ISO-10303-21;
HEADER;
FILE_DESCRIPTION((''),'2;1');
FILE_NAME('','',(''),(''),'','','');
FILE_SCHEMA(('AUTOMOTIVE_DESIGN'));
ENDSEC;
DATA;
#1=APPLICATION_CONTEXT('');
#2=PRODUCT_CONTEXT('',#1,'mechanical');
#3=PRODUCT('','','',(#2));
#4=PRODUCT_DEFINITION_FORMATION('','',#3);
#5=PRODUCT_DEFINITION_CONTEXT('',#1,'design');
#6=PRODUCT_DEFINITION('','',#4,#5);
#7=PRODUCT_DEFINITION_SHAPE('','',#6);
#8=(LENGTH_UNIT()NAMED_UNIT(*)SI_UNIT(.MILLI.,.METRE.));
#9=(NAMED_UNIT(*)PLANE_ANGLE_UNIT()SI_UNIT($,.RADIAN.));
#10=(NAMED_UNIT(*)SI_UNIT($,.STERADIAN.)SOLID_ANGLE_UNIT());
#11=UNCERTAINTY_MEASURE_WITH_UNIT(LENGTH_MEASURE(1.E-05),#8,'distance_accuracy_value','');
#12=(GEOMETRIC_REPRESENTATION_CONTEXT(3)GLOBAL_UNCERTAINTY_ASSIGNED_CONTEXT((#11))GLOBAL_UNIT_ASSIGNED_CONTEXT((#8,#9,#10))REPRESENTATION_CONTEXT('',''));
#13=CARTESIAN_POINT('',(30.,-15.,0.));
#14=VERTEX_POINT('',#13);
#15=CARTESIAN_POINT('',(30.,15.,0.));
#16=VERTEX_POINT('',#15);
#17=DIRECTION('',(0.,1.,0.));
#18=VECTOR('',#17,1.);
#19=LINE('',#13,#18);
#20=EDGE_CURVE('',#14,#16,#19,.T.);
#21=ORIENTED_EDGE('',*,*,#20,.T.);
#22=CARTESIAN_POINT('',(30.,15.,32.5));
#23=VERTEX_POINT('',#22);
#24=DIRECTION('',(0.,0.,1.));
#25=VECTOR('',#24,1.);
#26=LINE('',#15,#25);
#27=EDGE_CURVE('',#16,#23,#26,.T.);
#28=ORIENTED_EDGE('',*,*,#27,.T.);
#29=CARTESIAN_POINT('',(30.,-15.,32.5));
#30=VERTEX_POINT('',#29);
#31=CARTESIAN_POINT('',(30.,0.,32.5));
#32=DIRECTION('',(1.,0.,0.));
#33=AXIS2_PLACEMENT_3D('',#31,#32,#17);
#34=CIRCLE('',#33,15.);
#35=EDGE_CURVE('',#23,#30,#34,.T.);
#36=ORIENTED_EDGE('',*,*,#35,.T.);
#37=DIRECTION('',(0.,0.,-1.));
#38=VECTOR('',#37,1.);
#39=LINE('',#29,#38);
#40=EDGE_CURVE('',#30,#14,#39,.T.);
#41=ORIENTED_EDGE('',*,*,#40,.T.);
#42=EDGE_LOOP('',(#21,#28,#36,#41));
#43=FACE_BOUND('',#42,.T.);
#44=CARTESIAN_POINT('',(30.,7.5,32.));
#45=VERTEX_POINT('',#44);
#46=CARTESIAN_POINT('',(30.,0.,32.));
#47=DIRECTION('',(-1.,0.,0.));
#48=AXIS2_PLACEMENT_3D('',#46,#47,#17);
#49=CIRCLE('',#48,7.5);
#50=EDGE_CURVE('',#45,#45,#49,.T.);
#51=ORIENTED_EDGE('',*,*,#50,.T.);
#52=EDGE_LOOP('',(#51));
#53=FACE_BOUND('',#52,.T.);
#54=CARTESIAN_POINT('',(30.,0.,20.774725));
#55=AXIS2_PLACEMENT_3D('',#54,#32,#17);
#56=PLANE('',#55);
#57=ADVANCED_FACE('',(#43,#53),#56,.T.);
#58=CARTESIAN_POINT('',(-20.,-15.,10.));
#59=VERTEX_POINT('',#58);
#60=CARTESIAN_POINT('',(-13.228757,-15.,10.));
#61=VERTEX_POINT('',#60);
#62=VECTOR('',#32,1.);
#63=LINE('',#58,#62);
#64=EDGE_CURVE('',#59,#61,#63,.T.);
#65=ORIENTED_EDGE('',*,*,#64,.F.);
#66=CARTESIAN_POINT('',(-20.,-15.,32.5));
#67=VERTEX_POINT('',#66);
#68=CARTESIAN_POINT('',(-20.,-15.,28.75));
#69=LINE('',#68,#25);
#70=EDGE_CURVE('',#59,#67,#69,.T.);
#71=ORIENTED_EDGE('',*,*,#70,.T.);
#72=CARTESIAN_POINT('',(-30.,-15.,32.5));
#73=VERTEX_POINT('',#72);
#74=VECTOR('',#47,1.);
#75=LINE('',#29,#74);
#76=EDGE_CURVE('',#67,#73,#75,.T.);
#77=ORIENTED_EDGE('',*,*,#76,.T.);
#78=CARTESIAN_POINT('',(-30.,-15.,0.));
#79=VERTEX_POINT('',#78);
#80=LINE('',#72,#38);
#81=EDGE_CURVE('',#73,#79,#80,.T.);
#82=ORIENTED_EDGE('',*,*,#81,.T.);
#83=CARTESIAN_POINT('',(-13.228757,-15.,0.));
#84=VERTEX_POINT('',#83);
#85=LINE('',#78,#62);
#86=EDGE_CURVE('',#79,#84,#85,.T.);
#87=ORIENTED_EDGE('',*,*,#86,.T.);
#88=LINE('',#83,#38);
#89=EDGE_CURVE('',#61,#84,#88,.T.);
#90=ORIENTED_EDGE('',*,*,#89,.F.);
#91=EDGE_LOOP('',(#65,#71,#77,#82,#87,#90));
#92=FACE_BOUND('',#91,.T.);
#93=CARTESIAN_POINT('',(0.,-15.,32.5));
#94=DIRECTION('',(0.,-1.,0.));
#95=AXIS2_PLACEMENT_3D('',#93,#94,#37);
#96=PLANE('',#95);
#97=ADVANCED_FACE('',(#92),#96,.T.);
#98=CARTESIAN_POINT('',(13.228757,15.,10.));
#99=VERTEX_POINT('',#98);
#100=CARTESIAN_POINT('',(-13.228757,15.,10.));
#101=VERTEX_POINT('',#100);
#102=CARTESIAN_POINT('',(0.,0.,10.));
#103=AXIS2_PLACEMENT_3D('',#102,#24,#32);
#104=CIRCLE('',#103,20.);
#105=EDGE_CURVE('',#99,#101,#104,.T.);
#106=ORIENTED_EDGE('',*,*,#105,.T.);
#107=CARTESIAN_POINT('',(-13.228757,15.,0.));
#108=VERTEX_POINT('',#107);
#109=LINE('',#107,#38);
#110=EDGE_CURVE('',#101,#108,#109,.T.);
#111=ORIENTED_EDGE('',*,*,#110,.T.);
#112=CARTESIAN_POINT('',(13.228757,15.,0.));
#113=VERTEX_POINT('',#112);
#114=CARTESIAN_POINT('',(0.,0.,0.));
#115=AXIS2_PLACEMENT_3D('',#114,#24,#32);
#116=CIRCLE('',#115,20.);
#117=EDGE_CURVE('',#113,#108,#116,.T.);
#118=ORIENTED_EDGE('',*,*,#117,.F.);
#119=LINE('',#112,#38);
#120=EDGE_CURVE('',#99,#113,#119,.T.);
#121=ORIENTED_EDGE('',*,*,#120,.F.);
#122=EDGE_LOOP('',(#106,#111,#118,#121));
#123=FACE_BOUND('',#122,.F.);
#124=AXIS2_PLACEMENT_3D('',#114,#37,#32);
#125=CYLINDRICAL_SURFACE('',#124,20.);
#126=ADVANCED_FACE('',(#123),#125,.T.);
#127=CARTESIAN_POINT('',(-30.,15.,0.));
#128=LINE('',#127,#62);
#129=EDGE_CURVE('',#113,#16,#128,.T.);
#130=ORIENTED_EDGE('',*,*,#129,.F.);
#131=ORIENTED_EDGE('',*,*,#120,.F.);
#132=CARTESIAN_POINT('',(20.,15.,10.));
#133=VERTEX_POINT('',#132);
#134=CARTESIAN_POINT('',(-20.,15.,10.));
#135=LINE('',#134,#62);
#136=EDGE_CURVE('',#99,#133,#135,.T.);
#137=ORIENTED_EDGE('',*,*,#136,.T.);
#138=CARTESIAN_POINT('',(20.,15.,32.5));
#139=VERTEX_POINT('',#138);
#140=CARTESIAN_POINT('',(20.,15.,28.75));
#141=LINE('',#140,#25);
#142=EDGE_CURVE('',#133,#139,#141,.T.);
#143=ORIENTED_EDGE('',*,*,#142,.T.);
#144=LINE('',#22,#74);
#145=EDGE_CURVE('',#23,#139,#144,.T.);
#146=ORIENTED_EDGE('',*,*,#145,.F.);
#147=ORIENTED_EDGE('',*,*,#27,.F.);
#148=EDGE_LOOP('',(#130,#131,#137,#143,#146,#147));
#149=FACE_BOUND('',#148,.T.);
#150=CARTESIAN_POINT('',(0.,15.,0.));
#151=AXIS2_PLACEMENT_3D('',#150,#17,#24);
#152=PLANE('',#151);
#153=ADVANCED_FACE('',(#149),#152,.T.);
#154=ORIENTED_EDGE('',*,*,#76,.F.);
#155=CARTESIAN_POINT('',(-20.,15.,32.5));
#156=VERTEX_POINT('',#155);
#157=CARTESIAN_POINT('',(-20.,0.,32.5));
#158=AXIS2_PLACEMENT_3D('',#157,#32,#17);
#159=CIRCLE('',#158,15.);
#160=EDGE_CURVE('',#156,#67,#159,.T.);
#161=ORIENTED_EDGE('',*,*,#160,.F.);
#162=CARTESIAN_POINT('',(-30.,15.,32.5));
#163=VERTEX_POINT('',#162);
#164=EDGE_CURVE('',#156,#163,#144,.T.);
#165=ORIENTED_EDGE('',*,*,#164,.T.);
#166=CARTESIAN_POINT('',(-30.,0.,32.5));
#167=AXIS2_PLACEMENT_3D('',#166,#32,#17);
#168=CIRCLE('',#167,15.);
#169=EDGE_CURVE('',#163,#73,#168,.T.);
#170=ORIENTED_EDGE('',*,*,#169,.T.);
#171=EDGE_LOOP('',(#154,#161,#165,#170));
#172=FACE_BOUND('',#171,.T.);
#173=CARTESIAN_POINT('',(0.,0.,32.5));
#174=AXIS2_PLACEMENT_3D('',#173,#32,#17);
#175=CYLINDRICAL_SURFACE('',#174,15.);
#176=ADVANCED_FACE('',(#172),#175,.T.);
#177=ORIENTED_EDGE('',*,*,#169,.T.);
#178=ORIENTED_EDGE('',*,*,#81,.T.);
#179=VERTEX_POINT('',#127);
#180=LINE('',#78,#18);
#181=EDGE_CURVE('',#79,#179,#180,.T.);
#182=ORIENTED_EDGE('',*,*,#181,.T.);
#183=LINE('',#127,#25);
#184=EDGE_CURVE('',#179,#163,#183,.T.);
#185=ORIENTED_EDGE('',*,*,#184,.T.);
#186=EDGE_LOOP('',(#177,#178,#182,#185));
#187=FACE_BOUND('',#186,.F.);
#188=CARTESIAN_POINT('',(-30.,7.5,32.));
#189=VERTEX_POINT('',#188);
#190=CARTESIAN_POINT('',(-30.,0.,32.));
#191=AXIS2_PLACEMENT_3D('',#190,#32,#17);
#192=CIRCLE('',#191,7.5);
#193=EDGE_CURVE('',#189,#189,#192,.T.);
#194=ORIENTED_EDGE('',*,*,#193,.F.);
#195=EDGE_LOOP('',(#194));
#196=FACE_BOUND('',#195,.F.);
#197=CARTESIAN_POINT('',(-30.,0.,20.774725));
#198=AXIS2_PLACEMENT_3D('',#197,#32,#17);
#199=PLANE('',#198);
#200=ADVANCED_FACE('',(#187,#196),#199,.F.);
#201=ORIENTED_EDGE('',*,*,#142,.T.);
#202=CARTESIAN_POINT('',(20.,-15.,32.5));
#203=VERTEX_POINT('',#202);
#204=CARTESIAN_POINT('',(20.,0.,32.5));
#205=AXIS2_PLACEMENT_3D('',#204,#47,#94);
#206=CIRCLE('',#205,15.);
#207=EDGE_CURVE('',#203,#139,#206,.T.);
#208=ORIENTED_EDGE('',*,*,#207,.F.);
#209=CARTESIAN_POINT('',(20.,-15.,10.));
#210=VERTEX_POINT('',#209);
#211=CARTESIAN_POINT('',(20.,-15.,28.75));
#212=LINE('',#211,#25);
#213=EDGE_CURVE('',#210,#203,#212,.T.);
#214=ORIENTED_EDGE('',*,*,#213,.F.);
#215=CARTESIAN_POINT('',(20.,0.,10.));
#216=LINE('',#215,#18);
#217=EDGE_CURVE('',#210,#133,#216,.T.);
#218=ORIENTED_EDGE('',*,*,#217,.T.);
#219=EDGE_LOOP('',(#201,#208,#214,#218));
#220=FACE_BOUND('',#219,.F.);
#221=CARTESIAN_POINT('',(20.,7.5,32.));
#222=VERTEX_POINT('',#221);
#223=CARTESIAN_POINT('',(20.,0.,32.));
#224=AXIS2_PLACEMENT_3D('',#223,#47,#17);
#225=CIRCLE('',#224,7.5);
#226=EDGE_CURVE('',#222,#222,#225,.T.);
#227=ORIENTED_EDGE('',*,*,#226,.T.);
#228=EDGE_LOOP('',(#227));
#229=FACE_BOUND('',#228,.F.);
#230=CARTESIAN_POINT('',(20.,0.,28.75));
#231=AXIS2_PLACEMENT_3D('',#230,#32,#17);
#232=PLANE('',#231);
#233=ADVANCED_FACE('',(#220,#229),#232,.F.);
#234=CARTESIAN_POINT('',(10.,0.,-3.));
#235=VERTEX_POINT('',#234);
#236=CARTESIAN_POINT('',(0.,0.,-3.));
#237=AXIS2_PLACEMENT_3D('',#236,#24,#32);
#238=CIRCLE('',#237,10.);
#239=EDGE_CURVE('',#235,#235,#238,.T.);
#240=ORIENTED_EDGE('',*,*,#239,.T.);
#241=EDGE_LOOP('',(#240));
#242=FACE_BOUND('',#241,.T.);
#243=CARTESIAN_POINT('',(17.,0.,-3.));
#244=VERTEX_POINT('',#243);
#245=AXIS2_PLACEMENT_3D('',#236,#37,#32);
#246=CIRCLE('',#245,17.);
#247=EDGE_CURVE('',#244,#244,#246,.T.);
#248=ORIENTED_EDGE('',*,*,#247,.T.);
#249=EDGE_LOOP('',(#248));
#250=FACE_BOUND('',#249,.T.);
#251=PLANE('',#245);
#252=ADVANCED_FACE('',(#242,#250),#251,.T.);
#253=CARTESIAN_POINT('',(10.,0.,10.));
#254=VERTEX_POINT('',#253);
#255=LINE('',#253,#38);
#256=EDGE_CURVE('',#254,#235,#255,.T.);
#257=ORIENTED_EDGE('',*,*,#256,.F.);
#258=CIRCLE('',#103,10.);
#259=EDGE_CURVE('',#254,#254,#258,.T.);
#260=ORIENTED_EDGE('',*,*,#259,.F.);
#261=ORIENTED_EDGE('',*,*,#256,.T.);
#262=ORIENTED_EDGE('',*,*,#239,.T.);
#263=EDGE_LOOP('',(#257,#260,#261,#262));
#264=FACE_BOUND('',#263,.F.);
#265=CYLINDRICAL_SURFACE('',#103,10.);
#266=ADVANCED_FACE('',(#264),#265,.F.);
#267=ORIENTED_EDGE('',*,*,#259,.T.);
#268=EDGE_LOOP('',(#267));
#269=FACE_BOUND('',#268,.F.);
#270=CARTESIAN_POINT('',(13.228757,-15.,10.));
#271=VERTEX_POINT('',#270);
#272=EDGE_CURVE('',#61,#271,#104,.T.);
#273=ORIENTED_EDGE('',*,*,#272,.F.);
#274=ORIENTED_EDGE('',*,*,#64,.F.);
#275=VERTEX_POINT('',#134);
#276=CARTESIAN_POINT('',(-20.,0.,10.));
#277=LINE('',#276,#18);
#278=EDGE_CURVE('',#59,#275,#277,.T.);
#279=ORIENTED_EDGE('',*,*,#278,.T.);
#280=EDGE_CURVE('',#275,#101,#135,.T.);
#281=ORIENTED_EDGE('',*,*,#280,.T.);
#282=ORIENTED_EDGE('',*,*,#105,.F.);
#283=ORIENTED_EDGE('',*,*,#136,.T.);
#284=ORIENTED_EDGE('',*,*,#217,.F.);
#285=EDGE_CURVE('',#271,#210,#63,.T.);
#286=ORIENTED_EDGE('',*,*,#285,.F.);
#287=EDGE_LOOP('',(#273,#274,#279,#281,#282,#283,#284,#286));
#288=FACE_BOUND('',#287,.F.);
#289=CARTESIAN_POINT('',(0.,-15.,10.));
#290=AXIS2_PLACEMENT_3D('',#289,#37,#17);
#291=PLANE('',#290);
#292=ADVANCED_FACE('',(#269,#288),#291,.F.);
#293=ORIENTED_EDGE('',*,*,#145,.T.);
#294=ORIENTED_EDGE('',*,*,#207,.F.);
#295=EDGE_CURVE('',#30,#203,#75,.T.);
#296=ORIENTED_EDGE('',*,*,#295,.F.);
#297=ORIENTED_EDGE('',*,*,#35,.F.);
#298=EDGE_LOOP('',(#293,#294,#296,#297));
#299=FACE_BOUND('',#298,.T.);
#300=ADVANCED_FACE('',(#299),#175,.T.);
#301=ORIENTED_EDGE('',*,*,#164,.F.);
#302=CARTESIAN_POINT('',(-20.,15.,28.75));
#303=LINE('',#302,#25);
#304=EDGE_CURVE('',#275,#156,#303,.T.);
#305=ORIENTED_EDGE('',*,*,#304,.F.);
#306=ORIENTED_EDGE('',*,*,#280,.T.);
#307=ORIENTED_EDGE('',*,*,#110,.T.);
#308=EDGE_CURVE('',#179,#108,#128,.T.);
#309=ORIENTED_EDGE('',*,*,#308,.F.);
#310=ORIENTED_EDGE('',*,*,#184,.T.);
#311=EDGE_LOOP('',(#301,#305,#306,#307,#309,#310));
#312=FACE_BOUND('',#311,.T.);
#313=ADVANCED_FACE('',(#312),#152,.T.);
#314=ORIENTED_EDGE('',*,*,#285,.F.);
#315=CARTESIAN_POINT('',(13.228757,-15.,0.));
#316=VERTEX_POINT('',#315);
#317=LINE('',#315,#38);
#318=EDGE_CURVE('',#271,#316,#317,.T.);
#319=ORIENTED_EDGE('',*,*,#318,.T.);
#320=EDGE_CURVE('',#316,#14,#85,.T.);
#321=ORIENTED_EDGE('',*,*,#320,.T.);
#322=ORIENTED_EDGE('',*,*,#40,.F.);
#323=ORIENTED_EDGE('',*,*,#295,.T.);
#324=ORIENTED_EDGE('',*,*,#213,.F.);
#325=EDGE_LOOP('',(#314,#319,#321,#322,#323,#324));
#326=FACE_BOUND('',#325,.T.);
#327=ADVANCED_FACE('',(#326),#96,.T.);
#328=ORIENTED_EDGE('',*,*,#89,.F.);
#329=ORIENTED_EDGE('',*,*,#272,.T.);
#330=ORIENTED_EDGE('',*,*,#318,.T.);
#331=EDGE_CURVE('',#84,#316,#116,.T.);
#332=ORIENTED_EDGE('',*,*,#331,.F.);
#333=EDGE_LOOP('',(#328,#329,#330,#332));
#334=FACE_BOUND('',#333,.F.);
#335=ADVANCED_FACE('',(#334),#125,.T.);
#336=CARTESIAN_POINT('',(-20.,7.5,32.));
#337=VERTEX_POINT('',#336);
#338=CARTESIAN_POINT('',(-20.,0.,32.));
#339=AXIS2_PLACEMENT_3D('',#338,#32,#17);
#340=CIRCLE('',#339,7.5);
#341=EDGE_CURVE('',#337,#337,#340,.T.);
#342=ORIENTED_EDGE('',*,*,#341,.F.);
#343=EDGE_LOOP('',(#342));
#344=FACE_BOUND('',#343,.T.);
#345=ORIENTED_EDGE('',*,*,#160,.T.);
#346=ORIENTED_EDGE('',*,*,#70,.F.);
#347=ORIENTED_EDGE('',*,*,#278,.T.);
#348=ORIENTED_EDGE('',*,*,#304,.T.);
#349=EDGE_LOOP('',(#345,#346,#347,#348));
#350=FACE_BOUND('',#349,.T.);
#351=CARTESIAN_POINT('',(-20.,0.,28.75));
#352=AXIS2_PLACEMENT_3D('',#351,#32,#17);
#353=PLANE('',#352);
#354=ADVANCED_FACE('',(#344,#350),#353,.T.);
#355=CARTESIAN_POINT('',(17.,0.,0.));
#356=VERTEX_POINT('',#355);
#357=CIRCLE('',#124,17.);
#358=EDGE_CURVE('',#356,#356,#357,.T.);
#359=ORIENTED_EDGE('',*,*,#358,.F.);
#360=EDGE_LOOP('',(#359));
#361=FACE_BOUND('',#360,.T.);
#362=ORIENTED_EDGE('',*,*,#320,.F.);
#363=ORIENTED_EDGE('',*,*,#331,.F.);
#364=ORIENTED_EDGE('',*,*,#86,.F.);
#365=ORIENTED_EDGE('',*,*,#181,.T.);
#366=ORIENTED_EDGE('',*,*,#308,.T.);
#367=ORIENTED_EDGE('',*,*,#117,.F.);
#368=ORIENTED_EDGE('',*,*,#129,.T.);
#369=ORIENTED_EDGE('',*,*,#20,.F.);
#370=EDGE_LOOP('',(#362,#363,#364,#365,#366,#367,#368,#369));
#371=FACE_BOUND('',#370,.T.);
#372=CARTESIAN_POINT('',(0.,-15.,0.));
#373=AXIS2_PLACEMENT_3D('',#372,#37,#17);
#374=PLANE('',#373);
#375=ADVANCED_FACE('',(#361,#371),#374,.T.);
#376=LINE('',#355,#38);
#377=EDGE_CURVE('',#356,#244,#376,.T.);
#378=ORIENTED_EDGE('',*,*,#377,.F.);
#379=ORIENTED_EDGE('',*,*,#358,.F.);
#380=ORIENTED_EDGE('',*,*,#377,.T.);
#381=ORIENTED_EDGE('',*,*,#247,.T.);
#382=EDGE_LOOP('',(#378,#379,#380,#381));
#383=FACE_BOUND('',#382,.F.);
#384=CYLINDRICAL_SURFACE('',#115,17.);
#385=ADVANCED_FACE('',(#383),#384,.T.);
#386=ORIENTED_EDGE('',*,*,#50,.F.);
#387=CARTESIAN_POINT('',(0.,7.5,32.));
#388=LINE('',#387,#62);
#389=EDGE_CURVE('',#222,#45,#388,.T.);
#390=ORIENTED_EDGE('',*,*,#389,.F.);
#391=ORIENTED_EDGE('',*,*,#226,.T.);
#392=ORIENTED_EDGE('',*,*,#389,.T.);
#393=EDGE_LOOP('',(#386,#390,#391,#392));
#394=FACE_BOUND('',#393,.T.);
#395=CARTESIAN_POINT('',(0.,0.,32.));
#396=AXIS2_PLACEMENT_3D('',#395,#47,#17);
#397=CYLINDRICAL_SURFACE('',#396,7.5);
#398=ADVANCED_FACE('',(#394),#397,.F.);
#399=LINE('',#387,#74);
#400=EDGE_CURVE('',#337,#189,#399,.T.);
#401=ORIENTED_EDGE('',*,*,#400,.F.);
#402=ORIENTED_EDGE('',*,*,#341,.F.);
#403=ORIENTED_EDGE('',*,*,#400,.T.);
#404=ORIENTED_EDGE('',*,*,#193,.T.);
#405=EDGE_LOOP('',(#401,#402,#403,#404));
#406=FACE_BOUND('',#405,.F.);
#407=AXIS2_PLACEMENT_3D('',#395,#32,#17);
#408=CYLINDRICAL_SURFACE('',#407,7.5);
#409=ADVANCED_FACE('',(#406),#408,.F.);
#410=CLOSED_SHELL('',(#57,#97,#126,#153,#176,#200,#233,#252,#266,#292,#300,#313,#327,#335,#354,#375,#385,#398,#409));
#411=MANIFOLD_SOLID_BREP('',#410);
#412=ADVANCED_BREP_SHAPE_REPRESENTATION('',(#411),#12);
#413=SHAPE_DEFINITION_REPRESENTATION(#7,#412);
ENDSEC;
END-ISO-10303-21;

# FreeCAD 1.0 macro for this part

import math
import FreeCAD as App
import Part
import Sketcher

V = App.Vector
Q = App.Units.Quantity


def add_polygon(sketch, points):
    """Adds a closed chain of lines whose ends are joined by coincident constraints."""
    first, n = sketch.GeometryCount, len(points)
    for a, b in zip(points, points[1:] + points[:1]):
        sketch.addGeometry(Part.LineSegment(App.Vector(*a, 0), App.Vector(*b, 0)), False)
    for i in range(n):
        sketch.addConstraint(Sketcher.Constraint("Coincident", first + i, 2, first + (i + 1) % n, 1))

doc = App.newDocument("Part")
body = doc.addObject("PartDesign::Body", "Body")

# Sketch on XY plane
sketch1 = body.newObject("Sketcher::SketchObject", "Sketch")
sketch1.AttachmentSupport = (doc.getObject("XY_Plane"), [""])
sketch1.MapMode = "FlatFace"
sketch1.addGeometry(Part.Circle(V(0, 0, 0), V(0, 0, 1), 20), False)
sketch1.addConstraint(Sketcher.Constraint("Coincident", 0, 3, -1, 1))
sketch1.addConstraint(Sketcher.Constraint("Diameter", 0, Q("40 mm")))
pad1 = body.newObject("PartDesign::Pad", "Pad")
pad1.Profile = sketch1
pad1.Length = 10

# Sketch on YZ plane
sketch2 = body.newObject("Sketcher::SketchObject", "Sketch001")
sketch2.AttachmentSupport = (doc.getObject("YZ_Plane"), [""])
sketch2.MapMode = "FlatFace"
sketch2.addGeometry(Part.LineSegment(V(-15, 32, 0), V(-15, 0, 0)), False)
sketch2.addGeometry(Part.LineSegment(V(-15, 0, 0), V(15, 0, 0)), False)
sketch2.addGeometry(Part.LineSegment(V(15, 0, 0), V(15, 32, 0)), False)
sketch2.addGeometry(Part.ArcOfCircle(Part.Circle(V(0, 32, 0), V(0, 0, 1), 15), math.radians(0), math.radians(180)), False)
sketch2.addConstraint(Sketcher.Constraint("Coincident", 0, 2, 1, 1))
sketch2.addConstraint(Sketcher.Constraint("Coincident", 1, 2, 2, 1))
sketch2.addConstraint(Sketcher.Constraint("Tangent", 2, 2, 3, 1))
sketch2.addConstraint(Sketcher.Constraint("Tangent", 3, 2, 0, 1))
sketch2.addConstraint(Sketcher.Constraint("Vertical", 0))
sketch2.addConstraint(Sketcher.Constraint("Horizontal", 1))
sketch2.addConstraint(Sketcher.Constraint("Vertical", 2))
sketch2.addConstraint(Sketcher.Constraint("Symmetric", 0, 2, 1, 2, -1, 1))
sketch2.addConstraint(Sketcher.Constraint("Radius", 3, Q("15 mm")))
sketch2.addConstraint(Sketcher.Constraint("DistanceY", 0, 2, 0, 1, Q("32.5 mm")))
pad2 = body.newObject("PartDesign::Pad", "Pad001")
pad2.Profile = sketch2
pad2.Length = 60
pad2.Midplane = True

# Sketch on YZ plane
sketch3 = body.newObject("Sketcher::SketchObject", "Sketch002")
sketch3.AttachmentSupport = (doc.getObject("YZ_Plane"), [""])
sketch3.MapMode = "FlatFace"
add_polygon(sketch3, [(-15, 48), (-15, 10), (15, 10), (15, 48)])  # lines 0-3
sketch3.addConstraint(Sketcher.Constraint("Vertical", 0))
sketch3.addConstraint(Sketcher.Constraint("Horizontal", 1))
sketch3.addConstraint(Sketcher.Constraint("Vertical", 2))
sketch3.addConstraint(Sketcher.Constraint("Horizontal", 3))
sketch3.addConstraint(Sketcher.Constraint("DistanceX", 1, 1, 1, 2, Q("30 mm")))
sketch3.addConstraint(Sketcher.Constraint("DistanceY", 0, 2, 0, 1, Q("37.5 mm")))
sketch3.addConstraint(Sketcher.Constraint("DistanceX", 0, 2, -1, 1, Q("15 mm")))
sketch3.addConstraint(Sketcher.Constraint("DistanceY", -1, 1, 0, 2, Q("10 mm")))
pocket1 = body.newObject("PartDesign::Pocket", "Pocket")
pocket1.Profile = sketch3
pocket1.Length = 40
pocket1.Midplane = True

# Sketch on YZ plane
sketch4 = body.newObject("Sketcher::SketchObject", "Sketch003")
sketch4.AttachmentSupport = (doc.getObject("YZ_Plane"), [""])
sketch4.MapMode = "FlatFace"
sketch4.addGeometry(Part.Circle(V(0, 32, 0), V(0, 0, 1), 8), False)
sketch4.addConstraint(Sketcher.Constraint("PointOnObject", 0, 3, -2))
sketch4.addConstraint(Sketcher.Constraint("Diameter", 0, Q("15 mm")))
sketch4.addConstraint(Sketcher.Constraint("DistanceY", -1, 1, 0, 3, Q("32 mm")))
pocket2 = body.newObject("PartDesign::Pocket", "Pocket001")
pocket2.Profile = sketch4
pocket2.Type = "ThroughAll"
pocket2.Midplane = True

# Sketch on XY plane
sketch5 = body.newObject("Sketcher::SketchObject", "Sketch004")
sketch5.AttachmentSupport = (doc.getObject("XY_Plane"), [""])
sketch5.MapMode = "FlatFace"
sketch5.addGeometry(Part.Circle(V(0, 0, 0), V(0, 0, 1), 17), False)
sketch5.addConstraint(Sketcher.Constraint("Coincident", 0, 3, -1, 1))
sketch5.addConstraint(Sketcher.Constraint("Diameter", 0, Q("34 mm")))
pad3 = body.newObject("PartDesign::Pad", "Pad002")
pad3.Profile = sketch5
pad3.Length = 3
pad3.Reversed = True

# Sketch on XY plane
sketch6 = body.newObject("Sketcher::SketchObject", "Sketch005")
sketch6.AttachmentSupport = (doc.getObject("XY_Plane"), [""])
sketch6.MapMode = "FlatFace"
sketch6.AttachmentOffset = App.Placement(V(0, 0, 10), App.Rotation())
sketch6.addGeometry(Part.Circle(V(0, 0, 0), V(0, 0, 1), 10), False)
sketch6.addConstraint(Sketcher.Constraint("Coincident", 0, 3, -1, 1))
sketch6.addConstraint(Sketcher.Constraint("Diameter", 0, Q("20 mm")))
pocket3 = body.newObject("PartDesign::Pocket", "Pocket002")
pocket3.Profile = sketch6
pocket3.Type = "ThroughAll"

doc.recompute()
